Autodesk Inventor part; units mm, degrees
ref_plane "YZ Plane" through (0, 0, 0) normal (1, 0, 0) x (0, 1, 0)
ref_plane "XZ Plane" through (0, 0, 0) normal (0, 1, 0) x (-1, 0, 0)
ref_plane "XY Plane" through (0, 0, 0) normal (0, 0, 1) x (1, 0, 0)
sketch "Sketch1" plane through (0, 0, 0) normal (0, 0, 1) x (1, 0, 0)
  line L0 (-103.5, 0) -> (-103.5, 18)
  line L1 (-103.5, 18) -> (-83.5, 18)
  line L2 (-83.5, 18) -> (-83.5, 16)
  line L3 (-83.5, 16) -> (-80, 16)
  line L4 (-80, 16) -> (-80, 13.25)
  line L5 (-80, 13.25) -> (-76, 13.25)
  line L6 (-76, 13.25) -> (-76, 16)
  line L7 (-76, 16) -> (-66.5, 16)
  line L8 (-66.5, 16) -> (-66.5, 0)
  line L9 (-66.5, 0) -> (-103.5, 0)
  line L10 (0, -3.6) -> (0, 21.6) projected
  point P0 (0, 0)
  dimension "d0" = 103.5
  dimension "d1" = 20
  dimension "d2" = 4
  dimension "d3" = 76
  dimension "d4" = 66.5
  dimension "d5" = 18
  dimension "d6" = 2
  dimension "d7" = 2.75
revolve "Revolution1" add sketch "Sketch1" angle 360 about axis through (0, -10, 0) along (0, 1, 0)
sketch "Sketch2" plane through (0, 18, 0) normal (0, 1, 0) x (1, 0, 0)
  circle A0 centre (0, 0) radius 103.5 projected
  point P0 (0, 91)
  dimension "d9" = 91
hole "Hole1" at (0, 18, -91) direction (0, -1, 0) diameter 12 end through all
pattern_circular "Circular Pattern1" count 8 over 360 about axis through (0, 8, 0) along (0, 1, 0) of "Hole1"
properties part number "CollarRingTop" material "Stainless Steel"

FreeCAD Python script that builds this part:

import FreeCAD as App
import Part
import Sketcher

V = App.Vector


def add_polygon(sketch, points):
    """Adds a closed chain of lines whose ends are joined by coincident constraints."""
    first, n = sketch.GeometryCount, len(points)
    for a, b in zip(points, points[1:] + points[:1]):
        sketch.addGeometry(Part.LineSegment(App.Vector(*a, 0), App.Vector(*b, 0)), False)
    for i in range(n):
        sketch.addConstraint(Sketcher.Constraint("Coincident", first + i, 2, first + (i + 1) % n, 1))

doc = App.newDocument("Part")
body = doc.addObject("PartDesign::Body", "Body")

# Sketch on XY plane
sketch1 = doc.addObject("Sketcher::SketchObject", "Sketch")
body.addObject(sketch1)
sketch1.AttachmentSupport = (doc.XY_Plane, [""])
sketch1.MapMode = "FlatFace"
add_polygon(sketch1, [(-103.5, 18), (-103.5, 0), (-66.5, 0), (-66.5, 16), (-76, 16), (-76, 13.25), (-80, 13.25), (-80, 16), (-83.5, 16), (-83.5, 18)])  # lines 0-9
sketch1.addConstraint(Sketcher.Constraint("Vertical", 0))
sketch1.addConstraint(Sketcher.Constraint("Horizontal", 1))
sketch1.addConstraint(Sketcher.Constraint("Vertical", 2))
sketch1.addConstraint(Sketcher.Constraint("Horizontal", 3))
sketch1.addConstraint(Sketcher.Constraint("Vertical", 4))
sketch1.addConstraint(Sketcher.Constraint("Horizontal", 5))
sketch1.addConstraint(Sketcher.Constraint("Vertical", 6))
sketch1.addConstraint(Sketcher.Constraint("Horizontal", 7))
sketch1.addConstraint(Sketcher.Constraint("Vertical", 8))
sketch1.addConstraint(Sketcher.Constraint("Horizontal", 9))
sketch1.addConstraint(Sketcher.Constraint("PointOnObject", 0, 2, -1))
sketch1.addConstraint(Sketcher.Constraint("Horizontal", 3, 2, 6, 2))
sketch1.addConstraint(Sketcher.Constraint("DistanceX", 5, 2, 5, 1, 4.0))
sketch1.addConstraint(Sketcher.Constraint("DistanceX", 9, 2, 9, 1, 20.0))
sketch1.addConstraint(Sketcher.Constraint("DistanceY", 0, 2, 0, 1, 18.0))
sketch1.addConstraint(Sketcher.Constraint("DistanceY", 8, 1, 8, 2, 2.0))
sketch1.addConstraint(Sketcher.Constraint("DistanceX", 3, 2, -1, 1, 76.0))
sketch1.addConstraint(Sketcher.Constraint("DistanceY", 4, 2, 4, 1, 2.75))
sketch1.addConstraint(Sketcher.Constraint("DistanceX", 0, 2, -1, 1, 103.5))
sketch1.addConstraint(Sketcher.Constraint("DistanceX", 1, 2, -1, 1, 66.5))
revolution = doc.addObject("PartDesign::Revolution", "Revolution")
body.addObject(revolution)
revolution.Profile = sketch1
revolution.ReferenceAxis = (sketch1, ["V_Axis"])
revolution.Angle = 360

# Sketch on XZ plane
sketch2 = doc.addObject("Sketcher::SketchObject", "Sketch001")
body.addObject(sketch2)
sketch2.AttachmentSupport = (doc.XZ_Plane, [""])
sketch2.MapMode = "FlatFace"
sketch2.AttachmentOffset = App.Placement(V(0, 0, -18), App.Rotation())
sketch2.addGeometry(Part.Circle(V(0, -91, 0), V(0, 0, 1), 6), False)
sketch2.addConstraint(Sketcher.Constraint("PointOnObject", 0, 3, -2))
sketch2.addConstraint(Sketcher.Constraint("Diameter", 0, 12.0))
sketch2.addConstraint(Sketcher.Constraint("DistanceY", 0, 3, -1, 1, 91.0))
doc.recompute()
hole = doc.addObject("PartDesign::Hole", "Hole")
body.addObject(hole)
hole.Profile = sketch2
hole.ThreadType = "None"
hole.Diameter = 12
hole.DepthType = "ThroughAll"
hole.Reversed = True
doc.recompute()

polarpattern = doc.addObject("PartDesign::PolarPattern", "PolarPattern")
body.addObject(polarpattern)
polarpattern.Originals = [hole]
polarpattern.Axis = (doc.Y_Axis, [""])
polarpattern.Angle = 360
polarpattern.Occurrences = 8
body.Tip = polarpattern

doc.recompute()
